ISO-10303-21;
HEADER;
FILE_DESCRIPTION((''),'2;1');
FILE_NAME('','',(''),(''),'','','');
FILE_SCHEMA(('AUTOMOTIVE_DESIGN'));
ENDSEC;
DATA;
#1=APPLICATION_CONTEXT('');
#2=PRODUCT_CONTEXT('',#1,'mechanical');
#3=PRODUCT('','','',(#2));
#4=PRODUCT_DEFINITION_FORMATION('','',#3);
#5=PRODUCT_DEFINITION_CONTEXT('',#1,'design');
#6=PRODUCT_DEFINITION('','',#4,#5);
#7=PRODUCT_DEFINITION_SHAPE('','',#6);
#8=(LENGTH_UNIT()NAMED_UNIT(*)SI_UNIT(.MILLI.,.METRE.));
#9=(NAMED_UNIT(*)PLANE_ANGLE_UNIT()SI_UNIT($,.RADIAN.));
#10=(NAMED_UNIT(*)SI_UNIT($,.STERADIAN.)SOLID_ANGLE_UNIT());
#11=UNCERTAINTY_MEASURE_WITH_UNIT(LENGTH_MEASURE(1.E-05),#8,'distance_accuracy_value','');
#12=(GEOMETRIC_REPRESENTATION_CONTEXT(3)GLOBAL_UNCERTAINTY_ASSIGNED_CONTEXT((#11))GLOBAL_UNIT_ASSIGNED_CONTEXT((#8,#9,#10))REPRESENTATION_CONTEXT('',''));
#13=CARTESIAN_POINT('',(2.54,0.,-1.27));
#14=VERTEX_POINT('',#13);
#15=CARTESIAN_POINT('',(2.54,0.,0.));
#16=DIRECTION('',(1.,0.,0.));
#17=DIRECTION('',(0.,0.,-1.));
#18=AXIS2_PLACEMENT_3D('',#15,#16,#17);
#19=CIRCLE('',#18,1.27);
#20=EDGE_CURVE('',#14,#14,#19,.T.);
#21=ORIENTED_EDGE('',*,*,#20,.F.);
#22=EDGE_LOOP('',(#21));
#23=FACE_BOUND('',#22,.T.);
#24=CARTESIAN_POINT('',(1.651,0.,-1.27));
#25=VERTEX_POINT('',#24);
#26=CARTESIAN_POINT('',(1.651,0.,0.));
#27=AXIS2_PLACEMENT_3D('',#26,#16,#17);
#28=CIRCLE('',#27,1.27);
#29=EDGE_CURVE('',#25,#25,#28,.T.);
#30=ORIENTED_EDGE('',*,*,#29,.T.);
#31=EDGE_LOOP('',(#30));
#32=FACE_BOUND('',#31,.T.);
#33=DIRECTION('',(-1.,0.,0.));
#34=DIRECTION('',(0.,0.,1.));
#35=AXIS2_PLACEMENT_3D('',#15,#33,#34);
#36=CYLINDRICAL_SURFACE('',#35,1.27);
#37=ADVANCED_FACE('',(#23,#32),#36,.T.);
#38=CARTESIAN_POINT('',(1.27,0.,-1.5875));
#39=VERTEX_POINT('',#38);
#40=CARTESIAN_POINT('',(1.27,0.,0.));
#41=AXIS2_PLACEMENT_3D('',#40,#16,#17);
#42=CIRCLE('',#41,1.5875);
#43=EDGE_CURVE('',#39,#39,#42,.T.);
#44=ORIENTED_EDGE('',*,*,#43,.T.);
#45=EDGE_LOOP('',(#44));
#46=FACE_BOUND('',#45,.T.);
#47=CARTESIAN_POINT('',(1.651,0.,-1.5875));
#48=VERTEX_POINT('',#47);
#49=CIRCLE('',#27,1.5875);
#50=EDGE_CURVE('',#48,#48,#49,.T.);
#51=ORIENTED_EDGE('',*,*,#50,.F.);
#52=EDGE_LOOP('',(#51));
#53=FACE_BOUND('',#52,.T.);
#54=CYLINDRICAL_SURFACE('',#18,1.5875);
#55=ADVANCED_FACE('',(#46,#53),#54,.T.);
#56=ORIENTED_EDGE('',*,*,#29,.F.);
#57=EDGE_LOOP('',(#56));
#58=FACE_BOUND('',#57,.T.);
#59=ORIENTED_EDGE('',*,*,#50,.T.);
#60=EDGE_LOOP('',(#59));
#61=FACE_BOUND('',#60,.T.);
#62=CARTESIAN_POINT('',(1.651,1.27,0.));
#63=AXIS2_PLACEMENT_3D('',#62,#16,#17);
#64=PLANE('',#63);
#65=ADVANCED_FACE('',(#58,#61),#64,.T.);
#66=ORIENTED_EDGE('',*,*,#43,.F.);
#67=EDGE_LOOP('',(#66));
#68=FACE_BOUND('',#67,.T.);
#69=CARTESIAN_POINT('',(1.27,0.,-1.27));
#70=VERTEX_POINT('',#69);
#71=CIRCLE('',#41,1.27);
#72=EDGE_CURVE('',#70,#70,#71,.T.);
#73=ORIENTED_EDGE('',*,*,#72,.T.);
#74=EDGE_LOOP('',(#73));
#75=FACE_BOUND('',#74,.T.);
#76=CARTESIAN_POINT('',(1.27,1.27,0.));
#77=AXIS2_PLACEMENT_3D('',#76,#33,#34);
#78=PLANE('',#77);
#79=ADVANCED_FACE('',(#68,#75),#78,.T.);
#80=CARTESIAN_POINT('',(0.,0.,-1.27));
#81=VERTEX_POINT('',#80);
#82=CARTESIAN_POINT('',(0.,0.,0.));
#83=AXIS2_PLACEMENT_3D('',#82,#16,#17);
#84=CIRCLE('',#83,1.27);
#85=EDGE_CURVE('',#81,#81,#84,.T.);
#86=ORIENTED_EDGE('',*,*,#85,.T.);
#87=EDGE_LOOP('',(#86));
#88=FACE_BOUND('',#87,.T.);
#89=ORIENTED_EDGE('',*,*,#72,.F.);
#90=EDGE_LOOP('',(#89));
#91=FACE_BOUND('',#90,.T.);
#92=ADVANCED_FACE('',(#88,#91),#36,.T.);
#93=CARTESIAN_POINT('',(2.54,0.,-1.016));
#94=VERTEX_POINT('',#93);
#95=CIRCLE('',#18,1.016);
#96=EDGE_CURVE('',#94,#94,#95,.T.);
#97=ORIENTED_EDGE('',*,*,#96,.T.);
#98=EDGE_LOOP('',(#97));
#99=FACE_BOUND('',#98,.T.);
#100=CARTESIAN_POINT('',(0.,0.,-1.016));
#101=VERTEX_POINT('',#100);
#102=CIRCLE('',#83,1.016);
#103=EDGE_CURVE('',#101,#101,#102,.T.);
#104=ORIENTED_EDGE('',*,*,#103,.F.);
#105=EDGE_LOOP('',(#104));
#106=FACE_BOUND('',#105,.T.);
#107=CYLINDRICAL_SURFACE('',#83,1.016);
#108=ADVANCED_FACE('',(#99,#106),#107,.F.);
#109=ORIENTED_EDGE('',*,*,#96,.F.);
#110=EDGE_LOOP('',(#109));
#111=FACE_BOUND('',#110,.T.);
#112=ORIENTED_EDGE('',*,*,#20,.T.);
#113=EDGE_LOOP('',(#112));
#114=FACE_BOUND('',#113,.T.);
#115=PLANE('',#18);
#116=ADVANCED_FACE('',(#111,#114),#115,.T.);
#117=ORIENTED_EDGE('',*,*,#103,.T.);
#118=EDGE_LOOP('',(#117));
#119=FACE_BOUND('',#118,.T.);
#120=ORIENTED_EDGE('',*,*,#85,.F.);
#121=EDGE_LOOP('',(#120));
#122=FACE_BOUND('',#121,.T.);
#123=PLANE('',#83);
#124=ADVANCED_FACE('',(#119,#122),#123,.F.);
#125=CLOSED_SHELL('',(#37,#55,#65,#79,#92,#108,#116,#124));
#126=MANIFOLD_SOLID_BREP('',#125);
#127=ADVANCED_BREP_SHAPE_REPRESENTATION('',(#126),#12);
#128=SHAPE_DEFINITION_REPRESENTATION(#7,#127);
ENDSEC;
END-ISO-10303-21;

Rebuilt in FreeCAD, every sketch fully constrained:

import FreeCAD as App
import Part
import Sketcher

V = App.Vector
Q = App.Units.Quantity

doc = App.newDocument("Part")
params = doc.addObject("Spreadsheet::Sheet", "Params")
for row, (alias, value) in enumerate([
    ("sketch1_diameter", "0.1 in"),
    ("pad1_length", "0.1 in"),
    ("sketch2_width", "0.015 in"),
    ("revolution_angle", "360 deg"),
    ("sketch3_diameter", "0.08 in"),
], start=1):
    params.set(f"A{row}", alias)
    params.set(f"B{row}", "=" + value)
    params.setAlias(f"B{row}", alias)

body = doc.addObject("PartDesign::Body", "Body")

sketch1 = body.newObject("Sketcher::SketchObject", "Sketch")
sketch1.AttachmentSupport = (doc.getObject("YZ_Plane"), [""])
sketch1.MapMode = "FlatFace"
sketch1.addGeometry(Part.Circle(V(0, 0, 0), V(0, 0, 1), 1.3), False)
sketch1.addConstraint(Sketcher.Constraint("Coincident", 0, 3, -1, 1))
sketch1.addConstraint(Sketcher.Constraint("Diameter", 0, Q("0.1 in")))
sketch1.setExpression("Constraints[1]", "Params.sketch1_diameter")
pad1 = body.newObject("PartDesign::Pad", "Pad")
pad1.Profile = sketch1
pad1.setExpression("Length", "Params.pad1_length")

sketch2 = body.newObject("Sketcher::SketchObject", "Sketch001")
sketch2.AttachmentSupport = (doc.getObject("XY_Plane"), [""])
sketch2.MapMode = "FlatFace"
sketch2.addGeometry(Part.LineSegment(V(1.27, 1.59, 0), V(1.27, 1.27, 0)), False)
sketch2.addGeometry(Part.LineSegment(V(1.27, 1.27, 0), V(1.65, 1.27, 0)), False)
sketch2.addGeometry(Part.LineSegment(V(1.65, 1.27, 0), V(1.65, 1.59, 0)), False)
sketch2.addGeometry(Part.LineSegment(V(1.65, 1.59, 0), V(1.27, 1.59, 0)), False)
sketch2.addConstraint(Sketcher.Constraint("Coincident", 0, 2, 1, 1))
sketch2.addConstraint(Sketcher.Constraint("Coincident", 1, 2, 2, 1))
sketch2.addConstraint(Sketcher.Constraint("Coincident", 2, 2, 3, 1))
sketch2.addConstraint(Sketcher.Constraint("Coincident", 3, 2, 0, 1))
sketch2.addConstraint(Sketcher.Constraint("Vertical", 0))
sketch2.addConstraint(Sketcher.Constraint("Horizontal", 1))
sketch2.addConstraint(Sketcher.Constraint("Vertical", 2))
sketch2.addConstraint(Sketcher.Constraint("Horizontal", 3))
sketch2.addConstraint(Sketcher.Constraint("DistanceX", 1, 1, 1, 2, Q("0.015 in")))
sketch2.addConstraint(Sketcher.Constraint("DistanceX", -1, 1, 0, 2, Q("0.05 in")))
sketch2.addConstraint(Sketcher.Constraint("DistanceY", -1, 1, 0, 2, Q("0.05 in")))
sketch2.addConstraint(Sketcher.Constraint("DistanceY", 0, 2, 0, 1, Q("0.0125 in")))
sketch2.setExpression("Constraints[8]", "Params.sketch2_width")
revolution = body.newObject("PartDesign::Revolution", "Revolution")
revolution.Profile = sketch2
revolution.ReferenceAxis = (sketch2, ["H_Axis"])
revolution.setExpression("Angle", "Params.revolution_angle")

sketch3 = body.newObject("Sketcher::SketchObject", "Sketch002")
sketch3.AttachmentSupport = (doc.getObject("YZ_Plane"), [""])
sketch3.MapMode = "FlatFace"
sketch3.AttachmentOffset = App.Placement(V(0, 0, 0.1 * 25.4), App.Rotation())
sketch3.addGeometry(Part.Circle(V(0, 0, 0), V(0, 0, 1), 1), False)
sketch3.addConstraint(Sketcher.Constraint("Coincident", 0, 3, -1, 1))
sketch3.addConstraint(Sketcher.Constraint("Diameter", 0, Q("0.08 in")))
sketch3.setExpression("Constraints[1]", "Params.sketch3_diameter")
pocket1 = body.newObject("PartDesign::Pocket", "Pocket")
pocket1.Profile = sketch3
pocket1.Type = "ThroughAll"

doc.recompute()
